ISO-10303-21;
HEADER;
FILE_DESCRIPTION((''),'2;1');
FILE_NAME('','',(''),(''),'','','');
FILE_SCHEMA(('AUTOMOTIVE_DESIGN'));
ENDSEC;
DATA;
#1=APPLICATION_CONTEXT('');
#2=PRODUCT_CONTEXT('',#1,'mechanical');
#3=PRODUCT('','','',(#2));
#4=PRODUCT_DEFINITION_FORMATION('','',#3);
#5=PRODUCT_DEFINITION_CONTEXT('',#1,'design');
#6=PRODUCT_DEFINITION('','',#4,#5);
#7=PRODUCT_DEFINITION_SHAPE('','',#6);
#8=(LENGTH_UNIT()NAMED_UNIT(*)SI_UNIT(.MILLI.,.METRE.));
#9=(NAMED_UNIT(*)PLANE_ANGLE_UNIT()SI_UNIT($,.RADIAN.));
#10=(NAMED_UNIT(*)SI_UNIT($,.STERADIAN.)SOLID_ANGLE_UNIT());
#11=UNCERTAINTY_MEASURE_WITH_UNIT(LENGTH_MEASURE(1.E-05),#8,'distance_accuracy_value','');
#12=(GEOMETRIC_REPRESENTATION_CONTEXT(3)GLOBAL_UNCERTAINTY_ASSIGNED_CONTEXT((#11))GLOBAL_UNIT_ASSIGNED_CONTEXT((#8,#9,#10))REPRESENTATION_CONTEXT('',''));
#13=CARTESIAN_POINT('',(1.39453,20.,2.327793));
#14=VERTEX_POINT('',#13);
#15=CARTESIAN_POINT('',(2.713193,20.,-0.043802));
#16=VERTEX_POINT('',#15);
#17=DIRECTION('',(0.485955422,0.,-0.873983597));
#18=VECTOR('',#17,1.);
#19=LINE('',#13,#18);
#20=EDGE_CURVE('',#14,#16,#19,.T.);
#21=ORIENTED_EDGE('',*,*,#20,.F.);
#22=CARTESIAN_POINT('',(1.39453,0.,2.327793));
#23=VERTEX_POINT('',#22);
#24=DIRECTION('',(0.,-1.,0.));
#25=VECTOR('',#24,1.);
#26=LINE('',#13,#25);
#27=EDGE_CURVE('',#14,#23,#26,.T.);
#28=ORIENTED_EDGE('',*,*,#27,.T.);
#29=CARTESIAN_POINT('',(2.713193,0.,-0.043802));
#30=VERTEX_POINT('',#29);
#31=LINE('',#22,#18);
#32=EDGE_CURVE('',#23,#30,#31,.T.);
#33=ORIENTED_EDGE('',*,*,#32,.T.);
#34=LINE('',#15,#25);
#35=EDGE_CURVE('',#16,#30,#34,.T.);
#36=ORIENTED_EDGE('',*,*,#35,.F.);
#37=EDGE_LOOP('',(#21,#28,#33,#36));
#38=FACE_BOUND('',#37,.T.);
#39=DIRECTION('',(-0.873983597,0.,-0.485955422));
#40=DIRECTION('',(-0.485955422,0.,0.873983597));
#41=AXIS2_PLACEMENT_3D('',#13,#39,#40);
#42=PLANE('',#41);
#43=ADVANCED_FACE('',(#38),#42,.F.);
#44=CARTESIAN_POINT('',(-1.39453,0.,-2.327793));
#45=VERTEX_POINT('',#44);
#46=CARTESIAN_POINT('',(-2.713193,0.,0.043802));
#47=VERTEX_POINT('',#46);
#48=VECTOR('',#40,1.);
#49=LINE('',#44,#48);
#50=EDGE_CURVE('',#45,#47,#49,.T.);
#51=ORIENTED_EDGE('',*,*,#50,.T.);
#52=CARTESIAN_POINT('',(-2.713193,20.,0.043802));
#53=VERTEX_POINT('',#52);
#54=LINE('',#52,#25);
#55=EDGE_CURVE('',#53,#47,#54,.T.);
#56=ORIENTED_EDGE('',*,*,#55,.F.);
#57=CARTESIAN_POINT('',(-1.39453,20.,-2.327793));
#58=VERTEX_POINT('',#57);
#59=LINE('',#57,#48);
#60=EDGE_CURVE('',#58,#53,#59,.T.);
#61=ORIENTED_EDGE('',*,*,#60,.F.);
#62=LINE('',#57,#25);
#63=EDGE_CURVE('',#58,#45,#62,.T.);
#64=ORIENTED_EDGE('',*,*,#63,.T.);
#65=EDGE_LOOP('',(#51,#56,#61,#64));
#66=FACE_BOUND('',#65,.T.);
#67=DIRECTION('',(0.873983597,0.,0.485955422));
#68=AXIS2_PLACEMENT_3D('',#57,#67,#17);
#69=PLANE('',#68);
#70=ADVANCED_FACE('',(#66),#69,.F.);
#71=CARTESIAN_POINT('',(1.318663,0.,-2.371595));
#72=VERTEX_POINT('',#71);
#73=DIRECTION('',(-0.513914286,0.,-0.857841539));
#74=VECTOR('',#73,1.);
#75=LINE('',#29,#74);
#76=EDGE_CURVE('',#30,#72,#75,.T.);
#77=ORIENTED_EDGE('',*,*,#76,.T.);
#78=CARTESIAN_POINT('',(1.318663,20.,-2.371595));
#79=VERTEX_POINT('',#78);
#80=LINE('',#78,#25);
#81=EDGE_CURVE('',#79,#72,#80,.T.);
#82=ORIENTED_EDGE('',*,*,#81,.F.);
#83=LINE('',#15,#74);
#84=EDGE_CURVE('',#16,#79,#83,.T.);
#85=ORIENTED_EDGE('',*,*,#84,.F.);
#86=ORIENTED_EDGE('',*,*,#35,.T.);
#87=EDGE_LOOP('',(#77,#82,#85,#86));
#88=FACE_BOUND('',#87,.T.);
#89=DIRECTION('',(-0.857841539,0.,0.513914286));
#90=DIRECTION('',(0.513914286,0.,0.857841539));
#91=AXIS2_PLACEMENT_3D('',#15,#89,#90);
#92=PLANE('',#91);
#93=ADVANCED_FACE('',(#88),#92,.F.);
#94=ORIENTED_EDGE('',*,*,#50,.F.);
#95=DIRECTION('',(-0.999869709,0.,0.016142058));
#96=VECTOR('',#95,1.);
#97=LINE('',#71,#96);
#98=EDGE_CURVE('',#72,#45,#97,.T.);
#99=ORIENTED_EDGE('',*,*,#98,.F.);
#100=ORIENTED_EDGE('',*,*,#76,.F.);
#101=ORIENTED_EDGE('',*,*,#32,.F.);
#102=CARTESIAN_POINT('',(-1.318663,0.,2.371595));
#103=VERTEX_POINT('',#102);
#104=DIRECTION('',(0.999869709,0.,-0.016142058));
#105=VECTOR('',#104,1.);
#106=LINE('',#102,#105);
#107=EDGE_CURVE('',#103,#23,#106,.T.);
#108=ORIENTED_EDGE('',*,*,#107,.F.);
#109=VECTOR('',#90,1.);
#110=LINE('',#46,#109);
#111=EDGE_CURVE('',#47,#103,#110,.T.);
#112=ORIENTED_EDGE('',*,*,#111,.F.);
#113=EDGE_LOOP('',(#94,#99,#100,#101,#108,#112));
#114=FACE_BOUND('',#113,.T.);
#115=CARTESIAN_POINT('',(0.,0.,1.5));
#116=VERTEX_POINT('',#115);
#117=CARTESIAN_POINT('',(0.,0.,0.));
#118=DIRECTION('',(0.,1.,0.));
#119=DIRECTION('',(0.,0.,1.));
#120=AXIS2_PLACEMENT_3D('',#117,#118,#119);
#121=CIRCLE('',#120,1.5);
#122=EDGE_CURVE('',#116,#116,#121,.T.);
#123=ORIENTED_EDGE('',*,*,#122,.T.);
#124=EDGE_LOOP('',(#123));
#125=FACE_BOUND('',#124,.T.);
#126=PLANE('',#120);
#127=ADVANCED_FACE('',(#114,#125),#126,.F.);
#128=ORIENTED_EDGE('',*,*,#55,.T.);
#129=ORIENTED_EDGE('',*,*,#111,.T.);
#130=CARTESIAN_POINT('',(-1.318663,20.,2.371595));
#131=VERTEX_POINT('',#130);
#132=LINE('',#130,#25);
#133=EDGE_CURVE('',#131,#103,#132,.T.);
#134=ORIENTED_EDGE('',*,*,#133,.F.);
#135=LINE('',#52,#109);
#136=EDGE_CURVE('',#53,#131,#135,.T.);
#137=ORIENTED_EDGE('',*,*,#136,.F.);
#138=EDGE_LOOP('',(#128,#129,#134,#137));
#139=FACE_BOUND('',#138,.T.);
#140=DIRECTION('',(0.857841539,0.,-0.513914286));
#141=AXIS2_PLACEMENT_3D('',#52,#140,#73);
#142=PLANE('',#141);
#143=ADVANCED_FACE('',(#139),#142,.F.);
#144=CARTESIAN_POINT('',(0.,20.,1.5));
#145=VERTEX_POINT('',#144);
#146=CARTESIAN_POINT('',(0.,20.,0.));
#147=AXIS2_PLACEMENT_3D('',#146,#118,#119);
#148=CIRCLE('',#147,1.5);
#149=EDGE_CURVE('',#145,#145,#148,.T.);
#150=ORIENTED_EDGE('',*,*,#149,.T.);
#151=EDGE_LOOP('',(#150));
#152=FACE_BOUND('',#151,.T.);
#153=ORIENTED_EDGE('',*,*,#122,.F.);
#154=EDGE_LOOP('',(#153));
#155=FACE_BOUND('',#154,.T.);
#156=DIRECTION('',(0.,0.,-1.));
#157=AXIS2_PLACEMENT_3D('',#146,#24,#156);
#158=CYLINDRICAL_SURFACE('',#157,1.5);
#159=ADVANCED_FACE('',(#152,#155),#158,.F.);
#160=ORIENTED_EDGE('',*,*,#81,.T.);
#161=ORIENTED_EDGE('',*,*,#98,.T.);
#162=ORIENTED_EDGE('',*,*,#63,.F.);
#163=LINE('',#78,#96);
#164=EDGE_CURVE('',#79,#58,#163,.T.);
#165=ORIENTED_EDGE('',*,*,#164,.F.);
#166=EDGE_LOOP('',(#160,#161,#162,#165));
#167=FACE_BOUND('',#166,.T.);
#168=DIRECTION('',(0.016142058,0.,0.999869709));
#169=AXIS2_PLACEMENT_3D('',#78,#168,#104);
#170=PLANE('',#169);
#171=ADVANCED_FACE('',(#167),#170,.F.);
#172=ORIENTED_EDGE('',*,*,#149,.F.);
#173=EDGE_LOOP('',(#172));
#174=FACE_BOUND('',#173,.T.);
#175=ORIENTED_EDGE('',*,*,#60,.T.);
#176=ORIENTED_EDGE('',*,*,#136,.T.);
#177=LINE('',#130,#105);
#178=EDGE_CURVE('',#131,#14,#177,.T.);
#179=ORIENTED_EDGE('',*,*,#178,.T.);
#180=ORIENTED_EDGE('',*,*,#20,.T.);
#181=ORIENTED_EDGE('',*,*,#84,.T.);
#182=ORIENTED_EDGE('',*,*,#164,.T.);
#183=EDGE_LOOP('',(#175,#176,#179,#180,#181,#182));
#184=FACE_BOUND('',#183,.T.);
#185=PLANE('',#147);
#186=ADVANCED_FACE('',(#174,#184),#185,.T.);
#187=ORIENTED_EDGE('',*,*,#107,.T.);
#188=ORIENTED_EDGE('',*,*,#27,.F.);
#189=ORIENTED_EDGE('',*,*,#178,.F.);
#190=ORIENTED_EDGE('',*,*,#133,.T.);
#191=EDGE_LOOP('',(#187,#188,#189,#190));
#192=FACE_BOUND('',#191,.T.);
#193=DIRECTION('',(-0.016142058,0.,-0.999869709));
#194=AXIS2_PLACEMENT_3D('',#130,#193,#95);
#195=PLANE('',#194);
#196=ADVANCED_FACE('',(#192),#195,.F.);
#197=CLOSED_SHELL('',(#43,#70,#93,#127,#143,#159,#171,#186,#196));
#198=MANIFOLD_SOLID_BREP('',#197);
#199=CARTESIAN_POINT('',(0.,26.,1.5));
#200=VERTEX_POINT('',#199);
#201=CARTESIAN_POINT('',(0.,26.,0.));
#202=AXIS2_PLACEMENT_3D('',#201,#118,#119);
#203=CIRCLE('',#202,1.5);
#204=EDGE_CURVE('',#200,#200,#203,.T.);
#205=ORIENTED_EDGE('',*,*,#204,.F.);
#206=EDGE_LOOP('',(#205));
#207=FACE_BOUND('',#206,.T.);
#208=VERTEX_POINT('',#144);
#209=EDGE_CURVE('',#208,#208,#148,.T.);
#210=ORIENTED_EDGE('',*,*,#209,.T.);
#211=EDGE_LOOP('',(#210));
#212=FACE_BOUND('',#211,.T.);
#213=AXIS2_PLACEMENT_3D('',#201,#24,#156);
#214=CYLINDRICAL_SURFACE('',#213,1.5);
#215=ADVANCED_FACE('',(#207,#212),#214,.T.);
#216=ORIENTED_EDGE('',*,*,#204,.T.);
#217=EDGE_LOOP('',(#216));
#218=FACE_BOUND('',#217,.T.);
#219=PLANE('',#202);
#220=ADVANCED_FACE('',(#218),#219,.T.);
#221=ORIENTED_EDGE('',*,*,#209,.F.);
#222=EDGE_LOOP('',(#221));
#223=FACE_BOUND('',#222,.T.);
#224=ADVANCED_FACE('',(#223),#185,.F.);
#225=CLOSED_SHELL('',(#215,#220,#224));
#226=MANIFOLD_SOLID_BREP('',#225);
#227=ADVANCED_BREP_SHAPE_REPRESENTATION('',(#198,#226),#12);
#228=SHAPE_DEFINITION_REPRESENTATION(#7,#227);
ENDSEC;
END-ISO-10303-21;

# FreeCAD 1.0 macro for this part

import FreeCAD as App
import Part
import Sketcher

V = App.Vector

doc = App.newDocument("Part")
body = doc.addObject("PartDesign::Body", "Body")

sketch1 = body.newObject("Sketcher::SketchObject", "Sketch")
sketch1.AttachmentSupport = (doc.getObject("XZ_Plane"), [""])
sketch1.MapMode = "FlatFace"
sketch1.addGeometry(Part.LineSegment(V(1.4, 2.3, 0), V(2.7, 0, 0)), False)
sketch1.addGeometry(Part.LineSegment(V(2.7, 0, 0), V(1.3, -2.4, 0)), False)
sketch1.addGeometry(Part.LineSegment(V(1.3, -2.4, 0), V(-1.4, -2.3, 0)), False)
sketch1.addGeometry(Part.LineSegment(V(-1.4, -2.3, 0), V(-2.7, 0, 0)), False)
sketch1.addGeometry(Part.LineSegment(V(-2.7, 0, 0), V(-1.3, 2.4, 0)), False)
sketch1.addGeometry(Part.LineSegment(V(-1.3, 2.4, 0), V(1.4, 2.3, 0)), False)
sketch1.addGeometry(Part.Circle(V(0, 0, 0), V(0, 0, 1), 1.5), False)
sketch1.addConstraint(Sketcher.Constraint("Coincident", 0, 2, 1, 1))
sketch1.addConstraint(Sketcher.Constraint("Coincident", 1, 2, 2, 1))
sketch1.addConstraint(Sketcher.Constraint("Coincident", 2, 2, 3, 1))
sketch1.addConstraint(Sketcher.Constraint("Coincident", 3, 2, 4, 1))
sketch1.addConstraint(Sketcher.Constraint("Coincident", 4, 2, 5, 1))
sketch1.addConstraint(Sketcher.Constraint("Coincident", 5, 2, 0, 1))
sketch1.addConstraint(Sketcher.Constraint("Coincident", 6, 3, -1, 1))
sketch1.addConstraint(Sketcher.Constraint("Symmetric", 0, 2, 3, 2, -1, 1))
sketch1.addConstraint(Sketcher.Constraint("Symmetric", 1, 2, 4, 2, -1, 1))
sketch1.addConstraint(Sketcher.Constraint("Symmetric", 2, 2, 5, 2, -1, 1))
sketch1.addConstraint(Sketcher.Constraint("Equal", 0, 1))
sketch1.addConstraint(Sketcher.Constraint("Equal", 1, 2))
sketch1.addConstraint(Sketcher.Constraint("Diameter", 6, 3.0))
sketch1.addConstraint(Sketcher.Constraint("DistanceX", 2, 2, -1, 1, 1.39453))
sketch1.addConstraint(Sketcher.Constraint("DistanceX", 1, 2, 0, 2, 1.39453))
sketch1.addConstraint(Sketcher.Constraint("DistanceY", 2, 2, 0, 2, 2.28399))
sketch1.addConstraint(Sketcher.Constraint("DistanceY", 1, 2, 4, 2, 4.74319))
pad1 = body.newObject("PartDesign::Pad", "Pad")
pad1.Profile = sketch1
pad1.Length = 20
pad1.Reversed = True
body2 = doc.addObject("PartDesign::Body", "Body001")

sketch2 = body2.newObject("Sketcher::SketchObject", "Sketch001")
sketch2.AttachmentSupport = (doc.getObject("XZ_Plane001"), [""])
sketch2.MapMode = "FlatFace"
sketch2.AttachmentOffset = App.Placement(V(0, 0, -20), App.Rotation())
sketch2.addGeometry(Part.Circle(V(0, 0, 0), V(0, 0, 1), 1.5), False)
sketch2.addConstraint(Sketcher.Constraint("Coincident", 0, 3, -1, 1))
sketch2.addConstraint(Sketcher.Constraint("Diameter", 0, 3.0))
pad2 = body2.newObject("PartDesign::Pad", "Pad001")
pad2.Profile = sketch2
pad2.Length = 6
pad2.Reversed = True

doc.recompute()
